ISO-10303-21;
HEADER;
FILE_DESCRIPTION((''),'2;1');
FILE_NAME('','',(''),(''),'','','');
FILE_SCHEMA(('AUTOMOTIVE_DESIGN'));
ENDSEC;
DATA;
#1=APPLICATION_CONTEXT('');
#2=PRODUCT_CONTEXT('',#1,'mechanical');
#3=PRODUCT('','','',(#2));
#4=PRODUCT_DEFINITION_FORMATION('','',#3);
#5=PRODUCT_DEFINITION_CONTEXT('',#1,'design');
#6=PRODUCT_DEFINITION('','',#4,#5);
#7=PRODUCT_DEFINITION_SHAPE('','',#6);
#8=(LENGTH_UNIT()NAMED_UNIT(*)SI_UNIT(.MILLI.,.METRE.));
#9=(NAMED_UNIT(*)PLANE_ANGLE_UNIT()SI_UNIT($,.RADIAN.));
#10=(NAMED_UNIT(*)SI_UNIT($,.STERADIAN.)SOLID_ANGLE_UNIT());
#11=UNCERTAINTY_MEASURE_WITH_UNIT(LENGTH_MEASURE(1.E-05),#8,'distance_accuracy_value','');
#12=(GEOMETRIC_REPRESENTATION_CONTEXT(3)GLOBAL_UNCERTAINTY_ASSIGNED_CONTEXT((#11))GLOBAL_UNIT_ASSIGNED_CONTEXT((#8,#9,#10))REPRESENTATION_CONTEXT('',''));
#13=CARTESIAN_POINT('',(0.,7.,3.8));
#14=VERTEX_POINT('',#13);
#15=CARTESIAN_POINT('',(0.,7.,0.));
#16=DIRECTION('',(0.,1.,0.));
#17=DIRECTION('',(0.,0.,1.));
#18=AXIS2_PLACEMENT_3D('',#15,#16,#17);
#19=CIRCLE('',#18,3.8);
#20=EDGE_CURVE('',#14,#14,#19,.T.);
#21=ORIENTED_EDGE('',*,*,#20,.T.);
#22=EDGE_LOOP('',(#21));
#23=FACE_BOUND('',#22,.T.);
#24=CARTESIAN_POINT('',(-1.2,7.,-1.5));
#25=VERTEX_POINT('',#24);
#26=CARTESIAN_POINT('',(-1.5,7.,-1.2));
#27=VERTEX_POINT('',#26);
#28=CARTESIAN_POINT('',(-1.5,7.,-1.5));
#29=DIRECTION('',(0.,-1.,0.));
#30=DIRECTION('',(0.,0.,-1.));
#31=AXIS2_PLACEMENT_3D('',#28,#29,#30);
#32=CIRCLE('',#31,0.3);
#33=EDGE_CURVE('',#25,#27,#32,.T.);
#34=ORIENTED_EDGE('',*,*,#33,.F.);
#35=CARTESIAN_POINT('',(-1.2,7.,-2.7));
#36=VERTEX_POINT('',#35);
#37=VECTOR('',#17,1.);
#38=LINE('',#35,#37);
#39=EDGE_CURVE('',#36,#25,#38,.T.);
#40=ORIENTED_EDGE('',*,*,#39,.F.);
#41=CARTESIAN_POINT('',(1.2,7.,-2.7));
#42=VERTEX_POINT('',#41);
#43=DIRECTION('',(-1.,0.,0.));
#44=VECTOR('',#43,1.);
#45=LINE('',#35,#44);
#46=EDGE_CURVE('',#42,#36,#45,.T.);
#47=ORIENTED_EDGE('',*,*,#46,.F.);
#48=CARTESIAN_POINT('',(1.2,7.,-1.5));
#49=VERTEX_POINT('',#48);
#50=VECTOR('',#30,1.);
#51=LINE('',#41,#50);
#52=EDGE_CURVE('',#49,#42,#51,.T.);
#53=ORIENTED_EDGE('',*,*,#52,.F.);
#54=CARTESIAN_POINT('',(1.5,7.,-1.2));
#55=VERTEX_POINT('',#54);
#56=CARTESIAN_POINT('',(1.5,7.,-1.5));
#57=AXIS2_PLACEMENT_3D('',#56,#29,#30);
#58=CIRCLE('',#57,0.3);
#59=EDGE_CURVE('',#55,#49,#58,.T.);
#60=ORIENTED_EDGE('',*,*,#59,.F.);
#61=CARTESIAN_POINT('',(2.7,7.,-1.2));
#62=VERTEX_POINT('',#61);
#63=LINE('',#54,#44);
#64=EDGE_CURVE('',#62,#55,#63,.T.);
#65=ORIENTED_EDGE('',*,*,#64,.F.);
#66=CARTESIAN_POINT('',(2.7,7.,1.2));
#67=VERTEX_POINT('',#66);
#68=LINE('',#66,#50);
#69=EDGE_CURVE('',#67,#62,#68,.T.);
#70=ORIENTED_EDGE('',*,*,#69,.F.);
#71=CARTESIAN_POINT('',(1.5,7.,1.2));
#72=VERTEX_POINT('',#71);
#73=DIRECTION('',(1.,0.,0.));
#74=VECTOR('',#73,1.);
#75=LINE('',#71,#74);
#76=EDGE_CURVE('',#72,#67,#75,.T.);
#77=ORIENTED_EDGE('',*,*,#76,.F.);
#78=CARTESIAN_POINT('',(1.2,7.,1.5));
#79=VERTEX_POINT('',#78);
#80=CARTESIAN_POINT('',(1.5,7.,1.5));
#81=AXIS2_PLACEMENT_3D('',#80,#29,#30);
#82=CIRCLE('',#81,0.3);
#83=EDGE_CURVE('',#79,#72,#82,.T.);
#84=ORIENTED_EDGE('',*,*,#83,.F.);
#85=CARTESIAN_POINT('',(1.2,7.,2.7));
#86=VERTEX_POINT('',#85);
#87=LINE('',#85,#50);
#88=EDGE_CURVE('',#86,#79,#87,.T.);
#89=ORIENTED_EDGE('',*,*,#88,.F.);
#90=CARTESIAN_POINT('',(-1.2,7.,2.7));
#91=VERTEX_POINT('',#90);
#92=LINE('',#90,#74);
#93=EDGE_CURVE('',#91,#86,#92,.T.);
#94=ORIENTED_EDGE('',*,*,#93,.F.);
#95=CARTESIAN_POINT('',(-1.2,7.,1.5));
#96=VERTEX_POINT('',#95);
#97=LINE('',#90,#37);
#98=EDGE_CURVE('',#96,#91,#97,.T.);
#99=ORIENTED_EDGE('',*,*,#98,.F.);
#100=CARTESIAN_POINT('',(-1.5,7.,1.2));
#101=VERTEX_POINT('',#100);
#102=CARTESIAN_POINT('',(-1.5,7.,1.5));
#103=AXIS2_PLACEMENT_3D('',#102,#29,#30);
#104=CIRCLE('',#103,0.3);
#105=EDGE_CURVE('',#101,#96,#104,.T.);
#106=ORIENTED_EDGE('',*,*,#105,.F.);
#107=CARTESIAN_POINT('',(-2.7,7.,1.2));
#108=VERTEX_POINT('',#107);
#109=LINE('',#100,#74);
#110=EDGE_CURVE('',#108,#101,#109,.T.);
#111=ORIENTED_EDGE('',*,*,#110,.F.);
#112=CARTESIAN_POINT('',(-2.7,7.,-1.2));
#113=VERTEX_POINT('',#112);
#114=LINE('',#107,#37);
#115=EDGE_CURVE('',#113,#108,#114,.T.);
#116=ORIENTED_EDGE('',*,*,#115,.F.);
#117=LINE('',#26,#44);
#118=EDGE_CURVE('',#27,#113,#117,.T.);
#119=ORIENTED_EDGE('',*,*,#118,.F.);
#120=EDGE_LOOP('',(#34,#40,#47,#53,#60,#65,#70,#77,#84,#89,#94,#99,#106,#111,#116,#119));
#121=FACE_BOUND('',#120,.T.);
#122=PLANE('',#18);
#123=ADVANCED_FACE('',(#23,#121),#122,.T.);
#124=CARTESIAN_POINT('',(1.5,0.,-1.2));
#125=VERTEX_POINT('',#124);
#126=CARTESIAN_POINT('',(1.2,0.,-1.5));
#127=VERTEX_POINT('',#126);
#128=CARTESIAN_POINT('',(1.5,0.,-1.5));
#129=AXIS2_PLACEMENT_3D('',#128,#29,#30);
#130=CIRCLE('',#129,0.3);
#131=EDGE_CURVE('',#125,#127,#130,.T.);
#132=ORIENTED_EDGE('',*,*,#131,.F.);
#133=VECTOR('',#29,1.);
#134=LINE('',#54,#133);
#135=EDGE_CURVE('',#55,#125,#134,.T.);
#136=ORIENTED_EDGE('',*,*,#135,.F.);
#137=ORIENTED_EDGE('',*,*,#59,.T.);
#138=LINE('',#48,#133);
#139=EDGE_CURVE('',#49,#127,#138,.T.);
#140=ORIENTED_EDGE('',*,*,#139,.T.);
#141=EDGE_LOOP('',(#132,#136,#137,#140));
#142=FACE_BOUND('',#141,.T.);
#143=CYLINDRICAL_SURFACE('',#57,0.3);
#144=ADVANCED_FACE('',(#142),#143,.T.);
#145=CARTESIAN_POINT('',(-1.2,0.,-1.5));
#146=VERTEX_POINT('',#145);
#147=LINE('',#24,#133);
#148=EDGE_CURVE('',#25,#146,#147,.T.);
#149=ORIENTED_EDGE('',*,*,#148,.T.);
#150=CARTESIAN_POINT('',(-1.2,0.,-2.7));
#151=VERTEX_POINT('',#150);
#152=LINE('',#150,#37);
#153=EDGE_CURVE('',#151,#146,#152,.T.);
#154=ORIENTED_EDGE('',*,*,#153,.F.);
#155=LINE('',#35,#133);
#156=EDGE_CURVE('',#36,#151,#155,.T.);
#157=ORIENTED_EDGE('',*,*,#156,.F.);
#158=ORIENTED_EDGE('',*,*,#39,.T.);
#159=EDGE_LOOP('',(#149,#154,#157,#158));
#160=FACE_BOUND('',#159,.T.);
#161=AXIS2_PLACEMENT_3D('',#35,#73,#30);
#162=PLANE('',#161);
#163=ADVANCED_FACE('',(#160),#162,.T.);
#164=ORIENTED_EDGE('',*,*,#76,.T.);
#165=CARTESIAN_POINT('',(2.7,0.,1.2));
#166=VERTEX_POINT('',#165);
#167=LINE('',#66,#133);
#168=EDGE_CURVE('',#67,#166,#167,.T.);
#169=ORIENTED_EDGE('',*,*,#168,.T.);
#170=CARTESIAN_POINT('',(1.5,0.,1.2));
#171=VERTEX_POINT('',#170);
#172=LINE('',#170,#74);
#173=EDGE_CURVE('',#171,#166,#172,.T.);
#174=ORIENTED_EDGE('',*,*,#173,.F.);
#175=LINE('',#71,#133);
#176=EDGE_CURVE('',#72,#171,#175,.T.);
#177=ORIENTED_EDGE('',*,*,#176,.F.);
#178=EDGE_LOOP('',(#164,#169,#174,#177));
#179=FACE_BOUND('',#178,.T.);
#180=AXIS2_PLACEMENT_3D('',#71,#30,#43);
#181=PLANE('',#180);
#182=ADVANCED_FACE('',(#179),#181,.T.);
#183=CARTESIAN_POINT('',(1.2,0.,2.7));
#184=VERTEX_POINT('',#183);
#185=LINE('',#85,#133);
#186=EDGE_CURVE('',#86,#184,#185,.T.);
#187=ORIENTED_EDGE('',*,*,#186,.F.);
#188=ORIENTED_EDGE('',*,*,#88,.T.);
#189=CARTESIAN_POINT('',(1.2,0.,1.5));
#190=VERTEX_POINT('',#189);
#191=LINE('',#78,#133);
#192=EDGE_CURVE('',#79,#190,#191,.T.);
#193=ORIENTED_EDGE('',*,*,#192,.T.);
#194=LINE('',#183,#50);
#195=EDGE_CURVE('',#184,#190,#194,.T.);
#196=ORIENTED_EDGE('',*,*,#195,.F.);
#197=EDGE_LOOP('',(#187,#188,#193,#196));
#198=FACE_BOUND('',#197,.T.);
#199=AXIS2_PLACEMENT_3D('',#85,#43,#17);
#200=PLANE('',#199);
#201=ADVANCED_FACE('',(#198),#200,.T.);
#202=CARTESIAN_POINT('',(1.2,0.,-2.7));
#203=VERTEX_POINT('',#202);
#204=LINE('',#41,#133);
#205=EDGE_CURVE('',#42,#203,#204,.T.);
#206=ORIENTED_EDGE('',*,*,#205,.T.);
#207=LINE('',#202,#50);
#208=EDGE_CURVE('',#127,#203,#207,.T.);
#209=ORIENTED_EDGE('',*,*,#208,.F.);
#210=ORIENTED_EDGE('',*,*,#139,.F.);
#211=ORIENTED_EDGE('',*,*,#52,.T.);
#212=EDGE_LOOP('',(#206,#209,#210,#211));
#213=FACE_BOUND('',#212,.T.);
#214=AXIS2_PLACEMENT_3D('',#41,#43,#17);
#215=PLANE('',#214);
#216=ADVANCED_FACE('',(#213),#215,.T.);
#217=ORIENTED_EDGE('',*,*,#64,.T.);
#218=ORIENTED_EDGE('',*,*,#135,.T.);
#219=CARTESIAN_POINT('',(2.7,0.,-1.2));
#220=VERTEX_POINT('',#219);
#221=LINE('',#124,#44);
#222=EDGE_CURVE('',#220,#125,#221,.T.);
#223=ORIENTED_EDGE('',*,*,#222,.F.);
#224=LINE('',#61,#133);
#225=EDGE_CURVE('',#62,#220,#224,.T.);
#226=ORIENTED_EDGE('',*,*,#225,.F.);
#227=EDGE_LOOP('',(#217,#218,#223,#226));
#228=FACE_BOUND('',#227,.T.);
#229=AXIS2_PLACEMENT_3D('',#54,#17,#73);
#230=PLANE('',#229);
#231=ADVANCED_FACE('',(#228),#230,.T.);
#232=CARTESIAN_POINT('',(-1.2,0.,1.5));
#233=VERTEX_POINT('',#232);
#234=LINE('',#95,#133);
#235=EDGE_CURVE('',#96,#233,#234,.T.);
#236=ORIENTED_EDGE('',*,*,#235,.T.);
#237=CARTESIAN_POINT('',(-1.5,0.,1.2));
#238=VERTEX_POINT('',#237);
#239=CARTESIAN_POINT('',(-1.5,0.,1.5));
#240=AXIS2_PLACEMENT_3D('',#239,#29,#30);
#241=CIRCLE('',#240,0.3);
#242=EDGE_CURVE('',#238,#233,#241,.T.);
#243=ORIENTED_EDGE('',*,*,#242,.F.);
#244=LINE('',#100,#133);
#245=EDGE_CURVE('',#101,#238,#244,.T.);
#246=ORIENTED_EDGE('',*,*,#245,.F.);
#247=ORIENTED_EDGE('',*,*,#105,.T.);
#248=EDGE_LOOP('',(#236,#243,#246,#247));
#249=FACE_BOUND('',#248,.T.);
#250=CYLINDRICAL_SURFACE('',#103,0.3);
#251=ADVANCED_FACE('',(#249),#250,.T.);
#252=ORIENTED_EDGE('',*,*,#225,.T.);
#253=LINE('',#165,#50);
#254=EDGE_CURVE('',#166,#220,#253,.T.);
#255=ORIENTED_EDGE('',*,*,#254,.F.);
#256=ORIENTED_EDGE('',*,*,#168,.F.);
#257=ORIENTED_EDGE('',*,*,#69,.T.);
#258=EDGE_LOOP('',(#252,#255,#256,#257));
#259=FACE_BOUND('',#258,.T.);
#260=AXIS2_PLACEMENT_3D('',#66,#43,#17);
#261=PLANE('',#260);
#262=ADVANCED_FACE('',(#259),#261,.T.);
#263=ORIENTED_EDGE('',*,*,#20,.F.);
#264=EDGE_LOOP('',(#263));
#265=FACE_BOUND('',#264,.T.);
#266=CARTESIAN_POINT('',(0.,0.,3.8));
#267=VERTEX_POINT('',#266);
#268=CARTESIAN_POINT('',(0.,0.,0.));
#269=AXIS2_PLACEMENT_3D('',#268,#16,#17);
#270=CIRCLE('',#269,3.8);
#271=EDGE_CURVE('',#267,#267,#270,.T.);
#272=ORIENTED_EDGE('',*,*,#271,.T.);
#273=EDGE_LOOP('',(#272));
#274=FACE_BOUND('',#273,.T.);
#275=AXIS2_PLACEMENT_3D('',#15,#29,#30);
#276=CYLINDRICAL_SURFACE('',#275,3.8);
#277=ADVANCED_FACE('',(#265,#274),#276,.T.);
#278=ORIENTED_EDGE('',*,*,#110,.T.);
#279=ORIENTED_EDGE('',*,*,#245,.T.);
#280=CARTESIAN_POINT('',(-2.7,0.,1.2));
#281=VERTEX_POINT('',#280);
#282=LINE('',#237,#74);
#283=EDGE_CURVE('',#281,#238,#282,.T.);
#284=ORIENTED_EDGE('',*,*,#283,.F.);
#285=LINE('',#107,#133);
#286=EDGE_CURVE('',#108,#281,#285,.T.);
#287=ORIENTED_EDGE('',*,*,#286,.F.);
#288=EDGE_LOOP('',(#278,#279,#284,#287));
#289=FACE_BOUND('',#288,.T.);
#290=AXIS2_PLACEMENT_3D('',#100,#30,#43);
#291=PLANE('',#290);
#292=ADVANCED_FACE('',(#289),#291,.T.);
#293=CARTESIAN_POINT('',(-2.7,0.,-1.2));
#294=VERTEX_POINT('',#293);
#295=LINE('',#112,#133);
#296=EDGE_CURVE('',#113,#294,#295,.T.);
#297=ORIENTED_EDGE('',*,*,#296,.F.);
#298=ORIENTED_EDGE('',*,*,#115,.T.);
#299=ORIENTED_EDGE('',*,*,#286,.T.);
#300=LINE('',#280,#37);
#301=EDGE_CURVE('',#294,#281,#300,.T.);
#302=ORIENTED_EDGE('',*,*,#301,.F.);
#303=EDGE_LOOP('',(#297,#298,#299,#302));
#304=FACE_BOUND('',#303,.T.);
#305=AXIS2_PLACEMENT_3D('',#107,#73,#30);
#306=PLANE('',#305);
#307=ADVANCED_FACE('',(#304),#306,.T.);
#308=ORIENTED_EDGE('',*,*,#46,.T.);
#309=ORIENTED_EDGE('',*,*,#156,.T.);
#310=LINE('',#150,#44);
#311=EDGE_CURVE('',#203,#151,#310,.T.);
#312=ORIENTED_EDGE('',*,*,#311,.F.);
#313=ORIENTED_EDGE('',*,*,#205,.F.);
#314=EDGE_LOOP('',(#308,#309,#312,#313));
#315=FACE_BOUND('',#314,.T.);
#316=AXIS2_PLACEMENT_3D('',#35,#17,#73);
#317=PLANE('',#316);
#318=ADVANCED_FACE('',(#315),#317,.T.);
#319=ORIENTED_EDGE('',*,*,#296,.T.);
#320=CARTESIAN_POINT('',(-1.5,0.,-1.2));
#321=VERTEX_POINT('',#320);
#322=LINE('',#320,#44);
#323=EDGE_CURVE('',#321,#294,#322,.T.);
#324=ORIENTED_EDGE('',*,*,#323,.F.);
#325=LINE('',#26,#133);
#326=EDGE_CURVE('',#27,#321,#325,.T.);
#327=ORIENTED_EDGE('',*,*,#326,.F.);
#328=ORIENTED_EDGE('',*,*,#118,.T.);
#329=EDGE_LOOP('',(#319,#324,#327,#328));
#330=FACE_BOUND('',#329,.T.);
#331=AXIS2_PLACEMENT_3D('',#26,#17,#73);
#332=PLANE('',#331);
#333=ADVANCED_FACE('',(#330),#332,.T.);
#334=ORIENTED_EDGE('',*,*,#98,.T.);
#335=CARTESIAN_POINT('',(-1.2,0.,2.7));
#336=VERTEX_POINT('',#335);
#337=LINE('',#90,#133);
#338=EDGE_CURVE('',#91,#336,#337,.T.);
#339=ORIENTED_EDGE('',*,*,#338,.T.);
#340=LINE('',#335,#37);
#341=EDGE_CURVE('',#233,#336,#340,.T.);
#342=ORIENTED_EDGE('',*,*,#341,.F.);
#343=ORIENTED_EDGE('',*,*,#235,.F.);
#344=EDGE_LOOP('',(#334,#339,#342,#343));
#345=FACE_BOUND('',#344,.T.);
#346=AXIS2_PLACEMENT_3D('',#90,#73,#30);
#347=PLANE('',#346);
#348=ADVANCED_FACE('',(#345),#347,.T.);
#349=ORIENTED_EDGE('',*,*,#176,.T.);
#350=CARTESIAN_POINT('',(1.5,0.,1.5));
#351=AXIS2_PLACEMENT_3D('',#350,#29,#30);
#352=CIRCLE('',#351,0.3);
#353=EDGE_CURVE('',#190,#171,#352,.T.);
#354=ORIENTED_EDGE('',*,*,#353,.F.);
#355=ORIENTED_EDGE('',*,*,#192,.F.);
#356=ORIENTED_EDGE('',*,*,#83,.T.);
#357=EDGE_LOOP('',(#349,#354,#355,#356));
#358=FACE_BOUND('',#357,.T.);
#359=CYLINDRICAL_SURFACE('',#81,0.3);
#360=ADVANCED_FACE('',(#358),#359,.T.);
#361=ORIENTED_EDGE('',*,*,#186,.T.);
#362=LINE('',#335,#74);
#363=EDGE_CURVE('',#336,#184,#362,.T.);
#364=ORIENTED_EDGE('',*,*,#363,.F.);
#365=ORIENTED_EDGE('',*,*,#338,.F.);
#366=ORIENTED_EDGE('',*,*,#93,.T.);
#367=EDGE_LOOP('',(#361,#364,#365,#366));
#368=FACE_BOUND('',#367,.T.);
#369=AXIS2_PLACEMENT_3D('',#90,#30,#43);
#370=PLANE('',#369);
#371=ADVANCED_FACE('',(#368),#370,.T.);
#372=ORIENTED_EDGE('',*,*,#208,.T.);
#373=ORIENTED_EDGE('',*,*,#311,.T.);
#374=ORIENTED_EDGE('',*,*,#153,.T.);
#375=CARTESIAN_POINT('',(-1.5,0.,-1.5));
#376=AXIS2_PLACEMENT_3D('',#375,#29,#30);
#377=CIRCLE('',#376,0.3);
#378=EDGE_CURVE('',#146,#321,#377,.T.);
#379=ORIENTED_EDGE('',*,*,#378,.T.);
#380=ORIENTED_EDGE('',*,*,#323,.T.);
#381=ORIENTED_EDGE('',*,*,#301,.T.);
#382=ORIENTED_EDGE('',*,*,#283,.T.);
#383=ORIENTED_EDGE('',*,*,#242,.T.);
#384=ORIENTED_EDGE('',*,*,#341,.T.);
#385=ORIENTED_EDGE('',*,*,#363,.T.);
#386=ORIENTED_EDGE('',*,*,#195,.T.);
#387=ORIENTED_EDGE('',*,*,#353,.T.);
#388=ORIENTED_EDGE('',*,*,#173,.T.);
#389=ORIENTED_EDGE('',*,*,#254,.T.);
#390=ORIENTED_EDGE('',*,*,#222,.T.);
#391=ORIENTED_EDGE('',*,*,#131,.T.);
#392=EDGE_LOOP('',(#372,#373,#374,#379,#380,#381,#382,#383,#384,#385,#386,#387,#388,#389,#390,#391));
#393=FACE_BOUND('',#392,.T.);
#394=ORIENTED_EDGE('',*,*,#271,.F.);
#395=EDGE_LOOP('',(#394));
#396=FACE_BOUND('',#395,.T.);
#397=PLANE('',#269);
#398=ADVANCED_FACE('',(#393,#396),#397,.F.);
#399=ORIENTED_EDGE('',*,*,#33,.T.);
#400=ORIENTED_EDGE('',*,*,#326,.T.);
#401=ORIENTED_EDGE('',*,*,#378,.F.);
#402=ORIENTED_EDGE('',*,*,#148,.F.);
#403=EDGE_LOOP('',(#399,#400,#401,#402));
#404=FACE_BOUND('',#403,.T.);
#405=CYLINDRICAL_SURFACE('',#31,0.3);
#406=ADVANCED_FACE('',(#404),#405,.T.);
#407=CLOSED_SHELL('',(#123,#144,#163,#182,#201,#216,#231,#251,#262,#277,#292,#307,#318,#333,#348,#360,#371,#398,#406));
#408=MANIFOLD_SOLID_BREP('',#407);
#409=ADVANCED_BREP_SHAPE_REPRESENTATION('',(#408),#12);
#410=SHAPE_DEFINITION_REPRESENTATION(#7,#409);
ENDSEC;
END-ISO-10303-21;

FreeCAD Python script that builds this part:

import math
import FreeCAD as App
import Part
import Sketcher

doc = App.newDocument("Part")
body = doc.addObject("PartDesign::Body", "Body")

sketch1 = body.newObject("Sketcher::SketchObject", "Sketch")
sketch1.AttachmentSupport = (doc.getObject("XZ_Plane"), [""])
sketch1.MapMode = "FlatFace"
sketch1.addGeometry([
    Part.Circle(App.Vector(0, 0, 0), App.Vector(0, 0, 1), 3.8),
    Part.LineSegment(App.Vector(2.7, 1.2, 0), App.Vector(1.5, 1.2, 0)),
    Part.ArcOfCircle(Part.Circle(App.Vector(1.5, 1.5, 0), App.Vector(0, 0, 1), 0.3), math.radians(-180), math.radians(-90)),
    Part.LineSegment(App.Vector(1.2, 1.5, 0), App.Vector(1.2, 2.7, 0)),
    Part.LineSegment(App.Vector(1.2, 2.7, 0), App.Vector(-1.2, 2.7, 0)),
    Part.LineSegment(App.Vector(-1.2, 2.7, 0), App.Vector(-1.2, 1.5, 0)),
    Part.ArcOfCircle(Part.Circle(App.Vector(-1.5, 1.5, 0), App.Vector(0, 0, 1), 0.3), math.radians(-90), math.radians(0)),
    Part.LineSegment(App.Vector(-1.5, 1.2, 0), App.Vector(-2.7, 1.2, 0)),
    Part.LineSegment(App.Vector(-2.7, 1.2, 0), App.Vector(-2.7, -1.2, 0)),
    Part.LineSegment(App.Vector(-2.7, -1.2, 0), App.Vector(-1.5, -1.2, 0)),
    Part.ArcOfCircle(Part.Circle(App.Vector(-1.5, -1.5, 0), App.Vector(0, 0, 1), 0.3), math.radians(0), math.radians(90)),
    Part.LineSegment(App.Vector(-1.2, -1.5, 0), App.Vector(-1.2, -2.7, 0)),
    Part.LineSegment(App.Vector(-1.2, -2.7, 0), App.Vector(1.2, -2.7, 0)),
    Part.LineSegment(App.Vector(1.2, -2.7, 0), App.Vector(1.2, -1.5, 0)),
    Part.ArcOfCircle(Part.Circle(App.Vector(1.5, -1.5, 0), App.Vector(0, 0, 1), 0.3), math.radians(90), math.radians(180)),
    Part.LineSegment(App.Vector(1.5, -1.2, 0), App.Vector(2.7, -1.2, 0)),
    Part.LineSegment(App.Vector(2.7, -1.2, 0), App.Vector(2.7, 1.2, 0)),
], False)
sketch1.addConstraint([
    Sketcher.Constraint("Tangent", 1, 2, 2, 2),
    Sketcher.Constraint("Tangent", 2, 1, 3, 1),
    Sketcher.Constraint("Coincident", 3, 2, 4, 1),
    Sketcher.Constraint("Coincident", 4, 2, 5, 1),
    Sketcher.Constraint("Tangent", 5, 2, 6, 2),
    Sketcher.Constraint("Tangent", 6, 1, 7, 1),
    Sketcher.Constraint("Coincident", 7, 2, 8, 1),
    Sketcher.Constraint("Coincident", 8, 2, 9, 1),
    Sketcher.Constraint("Tangent", 9, 2, 10, 2),
    Sketcher.Constraint("Tangent", 10, 1, 11, 1),
    Sketcher.Constraint("Coincident", 11, 2, 12, 1),
    Sketcher.Constraint("Coincident", 12, 2, 13, 1),
    Sketcher.Constraint("Tangent", 13, 2, 14, 2),
    Sketcher.Constraint("Tangent", 14, 1, 15, 1),
    Sketcher.Constraint("Coincident", 15, 2, 16, 1),
    Sketcher.Constraint("Coincident", 16, 2, 1, 1),
    Sketcher.Constraint("Horizontal", 1),
    Sketcher.Constraint("Vertical", 3),
    Sketcher.Constraint("Horizontal", 4),
    Sketcher.Constraint("Vertical", 5),
    Sketcher.Constraint("Horizontal", 7),
    Sketcher.Constraint("Vertical", 8),
    Sketcher.Constraint("Horizontal", 9),
    Sketcher.Constraint("Vertical", 11),
    Sketcher.Constraint("Horizontal", 12),
    Sketcher.Constraint("Vertical", 13),
    Sketcher.Constraint("Horizontal", 15),
    Sketcher.Constraint("Vertical", 16),
    Sketcher.Constraint("Coincident", 0, 3, -1, 1),
    Sketcher.Constraint("Equal", 2, 6),
    Sketcher.Constraint("Equal", 6, 10),
    Sketcher.Constraint("Equal", 10, 14),
    Sketcher.Constraint("Symmetric", 2, 3, 10, 3, -1, 1),
    Sketcher.Constraint("Symmetric", 6, 3, 14, 3, -1, 1),
    Sketcher.Constraint("Symmetric", 2, 3, 6, 3, -2),
    Sketcher.Constraint("Equal", 1, 7),
    Sketcher.Constraint("Equal", 15, 3),
    Sketcher.Constraint("Equal", 12, 8),
    Sketcher.Constraint("Equal", 5, 11),
    Sketcher.Constraint("Diameter", 0, 7.6),
    Sketcher.Constraint("Radius", 2, 0.3),
    Sketcher.Constraint("DistanceX", 1, 2, 1, 1, 1.2),
    Sketcher.Constraint("DistanceX", 4, 2, 4, 1, 2.4),
])
pad1 = body.newObject("PartDesign::Pad", "Pad")
pad1.Profile = sketch1
pad1.Length = 7
pad1.Reversed = True

doc.recompute()
